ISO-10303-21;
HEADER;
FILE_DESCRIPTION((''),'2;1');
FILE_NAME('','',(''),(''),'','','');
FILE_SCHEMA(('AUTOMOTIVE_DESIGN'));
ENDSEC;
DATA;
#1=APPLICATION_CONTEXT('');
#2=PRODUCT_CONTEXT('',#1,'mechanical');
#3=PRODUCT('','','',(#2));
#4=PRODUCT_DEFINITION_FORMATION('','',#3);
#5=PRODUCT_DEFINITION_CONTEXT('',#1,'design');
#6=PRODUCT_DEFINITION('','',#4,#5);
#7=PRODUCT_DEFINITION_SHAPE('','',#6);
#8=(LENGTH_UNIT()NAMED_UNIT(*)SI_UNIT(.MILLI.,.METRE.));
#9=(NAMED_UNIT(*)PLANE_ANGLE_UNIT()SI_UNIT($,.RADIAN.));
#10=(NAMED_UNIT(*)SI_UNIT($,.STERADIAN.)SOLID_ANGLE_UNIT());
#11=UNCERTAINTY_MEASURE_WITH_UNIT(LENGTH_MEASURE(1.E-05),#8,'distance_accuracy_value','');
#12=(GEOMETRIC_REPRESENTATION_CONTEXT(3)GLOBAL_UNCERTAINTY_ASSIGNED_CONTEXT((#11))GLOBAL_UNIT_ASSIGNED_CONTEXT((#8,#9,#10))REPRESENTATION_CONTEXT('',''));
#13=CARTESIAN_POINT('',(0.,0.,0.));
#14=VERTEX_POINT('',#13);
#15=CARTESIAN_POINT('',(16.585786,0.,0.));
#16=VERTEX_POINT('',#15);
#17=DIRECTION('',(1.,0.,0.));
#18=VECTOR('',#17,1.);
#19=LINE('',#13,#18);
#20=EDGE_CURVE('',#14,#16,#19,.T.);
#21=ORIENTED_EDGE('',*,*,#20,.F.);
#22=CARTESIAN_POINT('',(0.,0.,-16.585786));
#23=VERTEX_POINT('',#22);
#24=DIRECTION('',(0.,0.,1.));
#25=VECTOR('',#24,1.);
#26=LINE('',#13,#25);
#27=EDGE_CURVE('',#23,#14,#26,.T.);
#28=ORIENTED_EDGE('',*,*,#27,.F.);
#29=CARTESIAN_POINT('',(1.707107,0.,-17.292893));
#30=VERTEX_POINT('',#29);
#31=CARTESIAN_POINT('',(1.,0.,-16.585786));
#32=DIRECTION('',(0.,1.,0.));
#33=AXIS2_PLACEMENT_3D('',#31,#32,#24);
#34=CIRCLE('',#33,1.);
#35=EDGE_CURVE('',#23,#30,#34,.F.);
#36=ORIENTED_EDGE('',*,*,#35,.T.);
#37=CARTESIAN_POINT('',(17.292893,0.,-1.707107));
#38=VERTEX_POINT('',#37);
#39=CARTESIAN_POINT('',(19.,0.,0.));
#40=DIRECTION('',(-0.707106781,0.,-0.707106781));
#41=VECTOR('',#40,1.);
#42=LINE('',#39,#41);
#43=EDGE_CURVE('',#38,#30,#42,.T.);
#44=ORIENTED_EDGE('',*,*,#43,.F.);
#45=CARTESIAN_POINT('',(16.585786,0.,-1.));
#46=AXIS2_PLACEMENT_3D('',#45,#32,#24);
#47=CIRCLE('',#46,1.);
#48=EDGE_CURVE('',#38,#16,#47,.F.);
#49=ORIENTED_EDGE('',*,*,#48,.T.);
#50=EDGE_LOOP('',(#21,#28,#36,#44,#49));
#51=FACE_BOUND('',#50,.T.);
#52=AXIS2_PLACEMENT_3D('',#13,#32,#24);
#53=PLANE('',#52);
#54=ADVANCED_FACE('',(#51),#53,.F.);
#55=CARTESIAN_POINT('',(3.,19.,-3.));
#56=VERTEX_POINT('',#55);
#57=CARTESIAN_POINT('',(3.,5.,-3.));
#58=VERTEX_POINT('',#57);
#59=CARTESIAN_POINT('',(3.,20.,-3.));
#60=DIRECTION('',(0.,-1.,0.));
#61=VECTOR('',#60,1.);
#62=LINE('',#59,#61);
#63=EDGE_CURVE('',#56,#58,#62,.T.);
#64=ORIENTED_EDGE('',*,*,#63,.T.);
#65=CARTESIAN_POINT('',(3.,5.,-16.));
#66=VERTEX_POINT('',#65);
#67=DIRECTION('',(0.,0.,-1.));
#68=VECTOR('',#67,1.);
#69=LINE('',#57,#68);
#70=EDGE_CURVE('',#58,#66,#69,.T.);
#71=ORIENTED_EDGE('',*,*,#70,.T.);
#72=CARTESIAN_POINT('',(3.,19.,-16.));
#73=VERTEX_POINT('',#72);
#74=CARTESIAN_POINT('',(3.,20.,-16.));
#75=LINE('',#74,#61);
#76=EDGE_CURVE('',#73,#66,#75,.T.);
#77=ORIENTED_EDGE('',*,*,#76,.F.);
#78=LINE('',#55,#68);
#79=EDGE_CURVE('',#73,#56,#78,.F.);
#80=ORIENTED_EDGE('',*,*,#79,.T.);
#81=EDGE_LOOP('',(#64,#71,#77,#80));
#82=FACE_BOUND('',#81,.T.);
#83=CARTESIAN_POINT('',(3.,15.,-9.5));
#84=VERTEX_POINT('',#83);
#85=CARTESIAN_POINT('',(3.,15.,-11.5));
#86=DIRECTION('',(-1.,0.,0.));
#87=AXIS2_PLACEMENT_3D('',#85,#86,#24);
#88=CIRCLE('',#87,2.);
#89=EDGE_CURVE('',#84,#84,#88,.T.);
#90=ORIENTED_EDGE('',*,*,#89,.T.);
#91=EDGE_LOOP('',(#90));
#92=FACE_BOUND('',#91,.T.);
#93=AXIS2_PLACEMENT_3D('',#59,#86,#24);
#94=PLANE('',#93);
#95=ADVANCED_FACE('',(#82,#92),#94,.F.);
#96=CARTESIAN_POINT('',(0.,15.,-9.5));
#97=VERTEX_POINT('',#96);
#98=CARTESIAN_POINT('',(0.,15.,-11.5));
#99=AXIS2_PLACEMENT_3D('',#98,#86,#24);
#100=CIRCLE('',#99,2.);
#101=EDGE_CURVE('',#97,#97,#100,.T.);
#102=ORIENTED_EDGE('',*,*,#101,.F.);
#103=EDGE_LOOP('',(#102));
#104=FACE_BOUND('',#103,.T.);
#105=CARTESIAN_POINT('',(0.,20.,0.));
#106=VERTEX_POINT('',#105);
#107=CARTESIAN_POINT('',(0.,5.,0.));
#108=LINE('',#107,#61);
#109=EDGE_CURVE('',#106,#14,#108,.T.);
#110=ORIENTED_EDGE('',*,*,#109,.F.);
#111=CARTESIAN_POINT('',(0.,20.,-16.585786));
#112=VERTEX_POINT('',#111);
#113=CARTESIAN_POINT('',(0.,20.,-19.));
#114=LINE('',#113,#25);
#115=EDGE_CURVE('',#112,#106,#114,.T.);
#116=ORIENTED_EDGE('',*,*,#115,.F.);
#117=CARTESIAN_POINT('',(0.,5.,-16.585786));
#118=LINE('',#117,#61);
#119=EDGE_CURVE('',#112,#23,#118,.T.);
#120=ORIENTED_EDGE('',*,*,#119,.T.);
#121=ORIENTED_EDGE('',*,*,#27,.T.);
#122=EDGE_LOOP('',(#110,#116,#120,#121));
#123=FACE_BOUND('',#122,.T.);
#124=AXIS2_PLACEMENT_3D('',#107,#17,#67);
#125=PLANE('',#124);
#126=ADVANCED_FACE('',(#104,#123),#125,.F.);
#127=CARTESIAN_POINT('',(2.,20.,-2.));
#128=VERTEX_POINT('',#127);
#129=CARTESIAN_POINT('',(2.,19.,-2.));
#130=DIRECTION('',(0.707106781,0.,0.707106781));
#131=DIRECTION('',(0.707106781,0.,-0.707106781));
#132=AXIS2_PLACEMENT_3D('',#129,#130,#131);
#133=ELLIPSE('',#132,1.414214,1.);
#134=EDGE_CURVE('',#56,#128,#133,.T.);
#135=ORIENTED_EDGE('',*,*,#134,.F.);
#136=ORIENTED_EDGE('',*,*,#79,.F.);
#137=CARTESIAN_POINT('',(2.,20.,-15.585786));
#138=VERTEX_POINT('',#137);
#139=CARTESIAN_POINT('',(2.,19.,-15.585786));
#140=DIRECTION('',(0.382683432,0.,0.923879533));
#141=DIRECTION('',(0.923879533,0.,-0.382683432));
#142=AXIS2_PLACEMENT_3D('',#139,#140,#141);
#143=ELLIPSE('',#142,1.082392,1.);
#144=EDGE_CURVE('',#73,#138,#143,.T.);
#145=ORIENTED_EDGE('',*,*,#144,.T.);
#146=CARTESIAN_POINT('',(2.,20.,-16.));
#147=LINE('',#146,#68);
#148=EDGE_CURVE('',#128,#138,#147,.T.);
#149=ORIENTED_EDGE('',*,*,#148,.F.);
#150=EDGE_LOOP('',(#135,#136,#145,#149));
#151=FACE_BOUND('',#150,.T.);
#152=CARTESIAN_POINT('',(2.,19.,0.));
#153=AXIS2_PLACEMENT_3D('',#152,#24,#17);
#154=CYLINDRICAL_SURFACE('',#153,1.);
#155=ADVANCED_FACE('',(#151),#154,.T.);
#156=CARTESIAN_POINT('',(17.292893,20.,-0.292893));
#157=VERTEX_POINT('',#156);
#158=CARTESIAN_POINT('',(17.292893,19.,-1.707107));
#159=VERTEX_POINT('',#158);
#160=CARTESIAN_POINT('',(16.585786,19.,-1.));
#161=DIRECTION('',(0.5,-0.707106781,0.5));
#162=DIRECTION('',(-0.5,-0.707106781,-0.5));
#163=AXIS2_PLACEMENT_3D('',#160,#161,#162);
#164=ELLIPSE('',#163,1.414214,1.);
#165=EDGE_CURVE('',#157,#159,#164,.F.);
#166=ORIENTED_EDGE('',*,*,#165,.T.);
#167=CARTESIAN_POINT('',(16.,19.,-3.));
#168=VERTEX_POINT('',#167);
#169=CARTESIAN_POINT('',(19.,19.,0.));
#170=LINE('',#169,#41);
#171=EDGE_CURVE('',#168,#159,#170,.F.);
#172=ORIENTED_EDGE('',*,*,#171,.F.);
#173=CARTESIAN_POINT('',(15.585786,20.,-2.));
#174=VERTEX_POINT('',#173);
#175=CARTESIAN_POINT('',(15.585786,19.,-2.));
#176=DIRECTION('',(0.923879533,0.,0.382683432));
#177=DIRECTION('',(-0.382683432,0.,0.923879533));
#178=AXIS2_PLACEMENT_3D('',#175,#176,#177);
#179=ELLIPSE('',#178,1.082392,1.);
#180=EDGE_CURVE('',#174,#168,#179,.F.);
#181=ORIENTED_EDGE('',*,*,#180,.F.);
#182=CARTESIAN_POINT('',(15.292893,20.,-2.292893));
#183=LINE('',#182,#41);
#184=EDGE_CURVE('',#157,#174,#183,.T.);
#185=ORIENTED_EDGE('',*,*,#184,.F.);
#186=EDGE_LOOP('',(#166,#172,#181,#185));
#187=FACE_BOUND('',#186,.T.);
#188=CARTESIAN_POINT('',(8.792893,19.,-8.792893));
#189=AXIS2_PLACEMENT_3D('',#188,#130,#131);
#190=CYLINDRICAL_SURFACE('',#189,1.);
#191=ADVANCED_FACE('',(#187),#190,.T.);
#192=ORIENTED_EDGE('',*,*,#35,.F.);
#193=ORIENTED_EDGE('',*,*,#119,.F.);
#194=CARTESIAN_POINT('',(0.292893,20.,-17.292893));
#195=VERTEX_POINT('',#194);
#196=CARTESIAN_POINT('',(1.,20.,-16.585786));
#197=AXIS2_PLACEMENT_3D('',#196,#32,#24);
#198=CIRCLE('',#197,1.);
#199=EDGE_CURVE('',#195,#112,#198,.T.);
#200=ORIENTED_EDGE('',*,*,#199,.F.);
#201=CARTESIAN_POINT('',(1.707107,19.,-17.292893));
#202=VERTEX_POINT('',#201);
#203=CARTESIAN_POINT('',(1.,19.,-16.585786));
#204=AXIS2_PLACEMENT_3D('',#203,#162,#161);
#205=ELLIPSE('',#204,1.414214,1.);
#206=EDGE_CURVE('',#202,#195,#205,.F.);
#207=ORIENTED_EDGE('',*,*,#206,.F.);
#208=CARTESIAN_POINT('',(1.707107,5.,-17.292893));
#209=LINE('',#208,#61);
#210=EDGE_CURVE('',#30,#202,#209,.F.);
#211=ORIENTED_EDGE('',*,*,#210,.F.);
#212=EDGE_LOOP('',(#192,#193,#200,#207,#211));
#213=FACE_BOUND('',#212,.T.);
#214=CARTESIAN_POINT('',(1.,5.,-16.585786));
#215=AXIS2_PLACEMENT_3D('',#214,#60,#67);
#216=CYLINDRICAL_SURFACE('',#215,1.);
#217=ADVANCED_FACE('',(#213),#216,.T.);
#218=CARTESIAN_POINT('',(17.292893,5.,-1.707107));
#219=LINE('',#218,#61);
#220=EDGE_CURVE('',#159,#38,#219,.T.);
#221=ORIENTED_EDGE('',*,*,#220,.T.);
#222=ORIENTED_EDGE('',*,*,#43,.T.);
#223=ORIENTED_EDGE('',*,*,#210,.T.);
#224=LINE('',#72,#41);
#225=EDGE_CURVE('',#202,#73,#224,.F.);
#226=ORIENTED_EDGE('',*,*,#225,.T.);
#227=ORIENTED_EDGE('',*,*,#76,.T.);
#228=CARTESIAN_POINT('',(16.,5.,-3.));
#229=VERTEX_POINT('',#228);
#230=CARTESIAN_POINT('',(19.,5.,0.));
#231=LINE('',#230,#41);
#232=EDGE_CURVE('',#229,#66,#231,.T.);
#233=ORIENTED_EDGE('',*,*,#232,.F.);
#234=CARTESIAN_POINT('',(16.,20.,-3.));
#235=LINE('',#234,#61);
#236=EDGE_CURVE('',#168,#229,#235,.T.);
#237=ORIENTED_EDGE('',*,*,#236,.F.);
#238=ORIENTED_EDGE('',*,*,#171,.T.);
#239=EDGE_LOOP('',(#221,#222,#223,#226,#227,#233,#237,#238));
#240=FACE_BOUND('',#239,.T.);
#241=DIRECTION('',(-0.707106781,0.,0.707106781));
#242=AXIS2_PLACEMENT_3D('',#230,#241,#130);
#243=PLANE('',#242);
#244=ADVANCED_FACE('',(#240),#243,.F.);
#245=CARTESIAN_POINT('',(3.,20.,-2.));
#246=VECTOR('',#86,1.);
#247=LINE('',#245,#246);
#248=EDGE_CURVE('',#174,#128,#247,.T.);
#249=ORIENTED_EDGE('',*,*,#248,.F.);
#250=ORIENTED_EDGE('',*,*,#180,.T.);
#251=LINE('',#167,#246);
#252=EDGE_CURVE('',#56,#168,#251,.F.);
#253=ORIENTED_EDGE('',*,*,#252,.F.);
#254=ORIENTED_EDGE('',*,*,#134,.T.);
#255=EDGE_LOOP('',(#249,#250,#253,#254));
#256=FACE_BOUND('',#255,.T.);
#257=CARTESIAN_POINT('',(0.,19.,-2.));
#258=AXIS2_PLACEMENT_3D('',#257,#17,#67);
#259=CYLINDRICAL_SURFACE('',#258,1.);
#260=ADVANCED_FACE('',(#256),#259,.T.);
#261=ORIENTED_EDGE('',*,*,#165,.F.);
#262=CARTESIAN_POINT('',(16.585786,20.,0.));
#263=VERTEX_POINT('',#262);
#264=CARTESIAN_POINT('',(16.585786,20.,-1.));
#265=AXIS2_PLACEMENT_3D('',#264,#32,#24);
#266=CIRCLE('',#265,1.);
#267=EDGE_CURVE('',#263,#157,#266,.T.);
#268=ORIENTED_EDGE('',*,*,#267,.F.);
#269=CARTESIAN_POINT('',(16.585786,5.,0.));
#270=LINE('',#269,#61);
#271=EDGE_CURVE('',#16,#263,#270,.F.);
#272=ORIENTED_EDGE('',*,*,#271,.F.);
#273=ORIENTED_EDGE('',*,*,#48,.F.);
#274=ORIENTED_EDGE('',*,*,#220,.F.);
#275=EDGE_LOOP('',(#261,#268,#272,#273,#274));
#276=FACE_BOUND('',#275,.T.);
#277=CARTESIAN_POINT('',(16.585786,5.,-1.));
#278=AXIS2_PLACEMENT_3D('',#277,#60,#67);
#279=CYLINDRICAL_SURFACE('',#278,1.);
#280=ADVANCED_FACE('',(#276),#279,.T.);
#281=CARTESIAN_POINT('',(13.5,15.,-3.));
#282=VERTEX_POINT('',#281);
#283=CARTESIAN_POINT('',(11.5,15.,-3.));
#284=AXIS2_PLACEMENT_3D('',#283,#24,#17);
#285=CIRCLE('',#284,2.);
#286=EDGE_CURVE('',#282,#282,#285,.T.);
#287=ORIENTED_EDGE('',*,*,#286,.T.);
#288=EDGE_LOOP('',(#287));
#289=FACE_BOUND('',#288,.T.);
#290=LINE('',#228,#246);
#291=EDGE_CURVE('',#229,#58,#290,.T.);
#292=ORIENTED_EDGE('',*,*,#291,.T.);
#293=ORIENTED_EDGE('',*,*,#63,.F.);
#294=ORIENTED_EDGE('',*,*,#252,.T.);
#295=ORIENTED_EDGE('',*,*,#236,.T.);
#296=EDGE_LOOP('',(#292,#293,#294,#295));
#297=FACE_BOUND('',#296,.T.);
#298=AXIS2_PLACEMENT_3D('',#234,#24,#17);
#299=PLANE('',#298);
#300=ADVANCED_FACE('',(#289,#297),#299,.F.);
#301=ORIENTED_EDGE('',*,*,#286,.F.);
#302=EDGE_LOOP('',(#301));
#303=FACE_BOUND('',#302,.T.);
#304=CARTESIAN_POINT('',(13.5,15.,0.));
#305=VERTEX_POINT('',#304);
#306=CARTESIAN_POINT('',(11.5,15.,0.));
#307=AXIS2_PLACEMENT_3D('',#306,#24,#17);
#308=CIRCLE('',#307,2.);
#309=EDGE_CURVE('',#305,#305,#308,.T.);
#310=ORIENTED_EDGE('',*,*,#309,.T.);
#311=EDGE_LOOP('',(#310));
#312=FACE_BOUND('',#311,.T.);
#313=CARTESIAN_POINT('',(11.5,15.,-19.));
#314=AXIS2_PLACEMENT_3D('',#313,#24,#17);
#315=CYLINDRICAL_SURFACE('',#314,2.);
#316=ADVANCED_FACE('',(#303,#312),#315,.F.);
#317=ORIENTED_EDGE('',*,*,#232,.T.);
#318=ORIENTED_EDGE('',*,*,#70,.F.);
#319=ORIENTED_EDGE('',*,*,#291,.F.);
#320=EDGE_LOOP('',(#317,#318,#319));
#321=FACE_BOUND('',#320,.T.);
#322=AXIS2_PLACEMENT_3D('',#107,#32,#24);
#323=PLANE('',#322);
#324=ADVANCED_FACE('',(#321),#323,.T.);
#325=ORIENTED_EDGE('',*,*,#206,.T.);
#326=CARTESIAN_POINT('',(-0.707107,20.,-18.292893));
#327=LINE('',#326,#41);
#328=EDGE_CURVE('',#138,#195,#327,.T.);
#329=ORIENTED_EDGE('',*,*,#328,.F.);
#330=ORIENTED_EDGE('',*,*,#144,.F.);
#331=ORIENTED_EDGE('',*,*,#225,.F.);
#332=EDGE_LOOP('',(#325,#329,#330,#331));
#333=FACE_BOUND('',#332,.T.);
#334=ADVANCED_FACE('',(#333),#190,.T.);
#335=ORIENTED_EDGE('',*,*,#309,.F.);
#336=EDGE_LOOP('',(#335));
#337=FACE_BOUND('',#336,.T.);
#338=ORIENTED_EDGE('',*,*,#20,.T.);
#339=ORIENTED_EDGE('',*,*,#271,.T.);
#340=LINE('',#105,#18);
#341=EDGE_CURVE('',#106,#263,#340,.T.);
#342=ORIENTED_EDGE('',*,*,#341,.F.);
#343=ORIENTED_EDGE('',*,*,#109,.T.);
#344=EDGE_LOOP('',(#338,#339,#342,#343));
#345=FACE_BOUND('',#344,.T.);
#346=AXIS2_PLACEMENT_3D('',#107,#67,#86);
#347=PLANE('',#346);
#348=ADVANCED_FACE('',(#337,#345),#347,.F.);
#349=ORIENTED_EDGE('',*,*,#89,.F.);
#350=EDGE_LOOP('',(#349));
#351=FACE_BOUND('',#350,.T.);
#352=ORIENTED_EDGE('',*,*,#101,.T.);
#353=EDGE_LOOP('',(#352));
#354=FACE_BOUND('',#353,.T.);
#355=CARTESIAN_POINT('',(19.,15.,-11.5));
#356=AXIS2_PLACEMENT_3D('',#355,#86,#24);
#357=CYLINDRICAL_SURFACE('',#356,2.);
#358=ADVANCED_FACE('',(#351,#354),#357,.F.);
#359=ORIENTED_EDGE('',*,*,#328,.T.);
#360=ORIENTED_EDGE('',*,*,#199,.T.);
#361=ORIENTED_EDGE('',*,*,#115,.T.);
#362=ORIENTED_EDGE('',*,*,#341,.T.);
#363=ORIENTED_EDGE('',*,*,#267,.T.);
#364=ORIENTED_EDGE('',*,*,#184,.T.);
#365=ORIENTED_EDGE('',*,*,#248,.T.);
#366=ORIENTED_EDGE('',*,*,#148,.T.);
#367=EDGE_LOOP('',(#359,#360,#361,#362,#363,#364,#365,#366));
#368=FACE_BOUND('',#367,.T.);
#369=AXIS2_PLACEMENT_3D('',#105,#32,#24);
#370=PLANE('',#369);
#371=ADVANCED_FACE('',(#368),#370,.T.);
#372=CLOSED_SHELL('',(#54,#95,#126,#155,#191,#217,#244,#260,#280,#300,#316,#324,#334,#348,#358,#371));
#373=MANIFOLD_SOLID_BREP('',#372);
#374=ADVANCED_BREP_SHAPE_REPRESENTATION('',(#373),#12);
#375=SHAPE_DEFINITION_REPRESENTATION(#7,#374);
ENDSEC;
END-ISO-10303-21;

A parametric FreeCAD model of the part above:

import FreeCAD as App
import Part
import Sketcher
from FreeCAD import Vector
Q = App.Units.Quantity


def edges_at(feature, points):
    """Names of the edges that pass closest to the given points."""
    edges = feature.Shape.Edges
    near = lambda p: min(range(len(edges)), key=lambda i: edges[i].distToShape(Part.Vertex(*p))[0])
    return sorted({f"Edge{near(p) + 1}" for p in points})


def add_polygon(sketch, points):
    """Adds a closed chain of lines whose ends are joined by coincident constraints."""
    first, n = sketch.GeometryCount, len(points)
    for a, b in zip(points, points[1:] + points[:1]):
        sketch.addGeometry(Part.LineSegment(App.Vector(*a, 0), App.Vector(*b, 0)), False)
    for i in range(n):
        sketch.addConstraint(Sketcher.Constraint("Coincident", first + i, 2, first + (i + 1) % n, 1))

doc = App.newDocument("Part")
body = doc.addObject("PartDesign::Body", "Body")

# Sketch on XZ plane
sketch1 = body.newObject("Sketcher::SketchObject", "Sketch")
sketch1.AttachmentSupport = (doc.getObject("XZ_Plane"), [""])
sketch1.MapMode = "FlatFace"
add_polygon(sketch1, [(0, -19), (0, 0), (19, 0)])  # lines 0-2
sketch1.addConstraint(Sketcher.Constraint("Vertical", 0))
sketch1.addConstraint(Sketcher.Constraint("Horizontal", 1))
sketch1.addConstraint(Sketcher.Constraint("Coincident", 0, 2, -1, 1))
sketch1.addConstraint(Sketcher.Constraint("Equal", 1, 0))
sketch1.addConstraint(Sketcher.Constraint("DistanceX", 1, 1, 1, 2, Q("19 mm")))
pad1 = body.newObject("PartDesign::Pad", "Pad")
pad1.Profile = sketch1
pad1.Length = 5
pad1.Reversed = True

# Sketch on XZ plane
sketch2 = body.newObject("Sketcher::SketchObject", "Sketch001")
sketch2.AttachmentSupport = (doc.getObject("XZ_Plane"), [""])
sketch2.MapMode = "FlatFace"
sketch2.AttachmentOffset = App.Placement(Vector(0, 0, -5), App.Rotation())
add_polygon(sketch2, [(0, -19), (0, 0), (19, 0), (16, -3), (3, -3), (3, -16)])  # lines 0-5
sketch2.addConstraint(Sketcher.Constraint("Vertical", 0))
sketch2.addConstraint(Sketcher.Constraint("Horizontal", 1))
sketch2.addConstraint(Sketcher.Constraint("Horizontal", 3))
sketch2.addConstraint(Sketcher.Constraint("Vertical", 4))
sketch2.addConstraint(Sketcher.Constraint("Coincident", 0, 2, -1, 1))
sketch2.addConstraint(Sketcher.Constraint("Parallel", 2, 5))
sketch2.addConstraint(Sketcher.Constraint("Equal", 1, 0))
sketch2.addConstraint(Sketcher.Constraint("Equal", 3, 4))
sketch2.addConstraint(Sketcher.Constraint("Equal", 2, 5))
sketch2.addConstraint(Sketcher.Constraint("DistanceX", 1, 1, 1, 2, Q("19 mm")))
sketch2.addConstraint(Sketcher.Constraint("DistanceX", 3, 2, 3, 1, Q("13 mm")))
pad2 = body.newObject("PartDesign::Pad", "Pad001")
pad2.Profile = sketch2
pad2.Length = 15
pad2.Reversed = True

# Sketch on XY plane
sketch3 = body.newObject("Sketcher::SketchObject", "Sketch002")
sketch3.AttachmentSupport = (doc.getObject("XY_Plane"), [""])
sketch3.MapMode = "FlatFace"
sketch3.addGeometry(Part.Circle(Vector(11.5, 15, 0), Vector(0, 0, 1), 2), False)
sketch3.addConstraint(Sketcher.Constraint("Diameter", 0, Q("4 mm")))
sketch3.addConstraint(Sketcher.Constraint("DistanceY", -1, 1, 0, 3, Q("15 mm")))
sketch3.addConstraint(Sketcher.Constraint("DistanceX", -1, 1, 0, 3, Q("11.5 mm")))
pocket1 = body.newObject("PartDesign::Pocket", "Pocket")
pocket1.Profile = sketch3
pocket1.Type = "ThroughAll"

# Sketch on YZ plane
sketch4 = body.newObject("Sketcher::SketchObject", "Sketch003")
sketch4.AttachmentSupport = (doc.getObject("YZ_Plane"), [""])
sketch4.MapMode = "FlatFace"
sketch4.addGeometry(Part.Circle(Vector(15, -11.5, 0), Vector(0, 0, 1), 2), False)
sketch4.addConstraint(Sketcher.Constraint("Diameter", 0, Q("4 mm")))
sketch4.addConstraint(Sketcher.Constraint("DistanceX", -1, 1, 0, 3, Q("15 mm")))
sketch4.addConstraint(Sketcher.Constraint("DistanceY", 0, 3, -1, 1, Q("11.5 mm")))
pocket2 = body.newObject("PartDesign::Pocket", "Pocket001")
pocket2.Profile = sketch4
pocket2.Type = "ThroughAll"
pocket2.Reversed = True
doc.recompute()

fillet = body.newObject("PartDesign::Fillet", "Fillet")
fillet.Base = (pocket2, edges_at(pocket2, [
    (9.5, 20, -3),
    (3, 20, -9.5),
    (1.5, 20, -17.5),
    (17.5, 20, -1.5),
    (19, 10, 0),
    (0, 10, -19),
]))
fillet.Radius = 1

doc.recompute()
